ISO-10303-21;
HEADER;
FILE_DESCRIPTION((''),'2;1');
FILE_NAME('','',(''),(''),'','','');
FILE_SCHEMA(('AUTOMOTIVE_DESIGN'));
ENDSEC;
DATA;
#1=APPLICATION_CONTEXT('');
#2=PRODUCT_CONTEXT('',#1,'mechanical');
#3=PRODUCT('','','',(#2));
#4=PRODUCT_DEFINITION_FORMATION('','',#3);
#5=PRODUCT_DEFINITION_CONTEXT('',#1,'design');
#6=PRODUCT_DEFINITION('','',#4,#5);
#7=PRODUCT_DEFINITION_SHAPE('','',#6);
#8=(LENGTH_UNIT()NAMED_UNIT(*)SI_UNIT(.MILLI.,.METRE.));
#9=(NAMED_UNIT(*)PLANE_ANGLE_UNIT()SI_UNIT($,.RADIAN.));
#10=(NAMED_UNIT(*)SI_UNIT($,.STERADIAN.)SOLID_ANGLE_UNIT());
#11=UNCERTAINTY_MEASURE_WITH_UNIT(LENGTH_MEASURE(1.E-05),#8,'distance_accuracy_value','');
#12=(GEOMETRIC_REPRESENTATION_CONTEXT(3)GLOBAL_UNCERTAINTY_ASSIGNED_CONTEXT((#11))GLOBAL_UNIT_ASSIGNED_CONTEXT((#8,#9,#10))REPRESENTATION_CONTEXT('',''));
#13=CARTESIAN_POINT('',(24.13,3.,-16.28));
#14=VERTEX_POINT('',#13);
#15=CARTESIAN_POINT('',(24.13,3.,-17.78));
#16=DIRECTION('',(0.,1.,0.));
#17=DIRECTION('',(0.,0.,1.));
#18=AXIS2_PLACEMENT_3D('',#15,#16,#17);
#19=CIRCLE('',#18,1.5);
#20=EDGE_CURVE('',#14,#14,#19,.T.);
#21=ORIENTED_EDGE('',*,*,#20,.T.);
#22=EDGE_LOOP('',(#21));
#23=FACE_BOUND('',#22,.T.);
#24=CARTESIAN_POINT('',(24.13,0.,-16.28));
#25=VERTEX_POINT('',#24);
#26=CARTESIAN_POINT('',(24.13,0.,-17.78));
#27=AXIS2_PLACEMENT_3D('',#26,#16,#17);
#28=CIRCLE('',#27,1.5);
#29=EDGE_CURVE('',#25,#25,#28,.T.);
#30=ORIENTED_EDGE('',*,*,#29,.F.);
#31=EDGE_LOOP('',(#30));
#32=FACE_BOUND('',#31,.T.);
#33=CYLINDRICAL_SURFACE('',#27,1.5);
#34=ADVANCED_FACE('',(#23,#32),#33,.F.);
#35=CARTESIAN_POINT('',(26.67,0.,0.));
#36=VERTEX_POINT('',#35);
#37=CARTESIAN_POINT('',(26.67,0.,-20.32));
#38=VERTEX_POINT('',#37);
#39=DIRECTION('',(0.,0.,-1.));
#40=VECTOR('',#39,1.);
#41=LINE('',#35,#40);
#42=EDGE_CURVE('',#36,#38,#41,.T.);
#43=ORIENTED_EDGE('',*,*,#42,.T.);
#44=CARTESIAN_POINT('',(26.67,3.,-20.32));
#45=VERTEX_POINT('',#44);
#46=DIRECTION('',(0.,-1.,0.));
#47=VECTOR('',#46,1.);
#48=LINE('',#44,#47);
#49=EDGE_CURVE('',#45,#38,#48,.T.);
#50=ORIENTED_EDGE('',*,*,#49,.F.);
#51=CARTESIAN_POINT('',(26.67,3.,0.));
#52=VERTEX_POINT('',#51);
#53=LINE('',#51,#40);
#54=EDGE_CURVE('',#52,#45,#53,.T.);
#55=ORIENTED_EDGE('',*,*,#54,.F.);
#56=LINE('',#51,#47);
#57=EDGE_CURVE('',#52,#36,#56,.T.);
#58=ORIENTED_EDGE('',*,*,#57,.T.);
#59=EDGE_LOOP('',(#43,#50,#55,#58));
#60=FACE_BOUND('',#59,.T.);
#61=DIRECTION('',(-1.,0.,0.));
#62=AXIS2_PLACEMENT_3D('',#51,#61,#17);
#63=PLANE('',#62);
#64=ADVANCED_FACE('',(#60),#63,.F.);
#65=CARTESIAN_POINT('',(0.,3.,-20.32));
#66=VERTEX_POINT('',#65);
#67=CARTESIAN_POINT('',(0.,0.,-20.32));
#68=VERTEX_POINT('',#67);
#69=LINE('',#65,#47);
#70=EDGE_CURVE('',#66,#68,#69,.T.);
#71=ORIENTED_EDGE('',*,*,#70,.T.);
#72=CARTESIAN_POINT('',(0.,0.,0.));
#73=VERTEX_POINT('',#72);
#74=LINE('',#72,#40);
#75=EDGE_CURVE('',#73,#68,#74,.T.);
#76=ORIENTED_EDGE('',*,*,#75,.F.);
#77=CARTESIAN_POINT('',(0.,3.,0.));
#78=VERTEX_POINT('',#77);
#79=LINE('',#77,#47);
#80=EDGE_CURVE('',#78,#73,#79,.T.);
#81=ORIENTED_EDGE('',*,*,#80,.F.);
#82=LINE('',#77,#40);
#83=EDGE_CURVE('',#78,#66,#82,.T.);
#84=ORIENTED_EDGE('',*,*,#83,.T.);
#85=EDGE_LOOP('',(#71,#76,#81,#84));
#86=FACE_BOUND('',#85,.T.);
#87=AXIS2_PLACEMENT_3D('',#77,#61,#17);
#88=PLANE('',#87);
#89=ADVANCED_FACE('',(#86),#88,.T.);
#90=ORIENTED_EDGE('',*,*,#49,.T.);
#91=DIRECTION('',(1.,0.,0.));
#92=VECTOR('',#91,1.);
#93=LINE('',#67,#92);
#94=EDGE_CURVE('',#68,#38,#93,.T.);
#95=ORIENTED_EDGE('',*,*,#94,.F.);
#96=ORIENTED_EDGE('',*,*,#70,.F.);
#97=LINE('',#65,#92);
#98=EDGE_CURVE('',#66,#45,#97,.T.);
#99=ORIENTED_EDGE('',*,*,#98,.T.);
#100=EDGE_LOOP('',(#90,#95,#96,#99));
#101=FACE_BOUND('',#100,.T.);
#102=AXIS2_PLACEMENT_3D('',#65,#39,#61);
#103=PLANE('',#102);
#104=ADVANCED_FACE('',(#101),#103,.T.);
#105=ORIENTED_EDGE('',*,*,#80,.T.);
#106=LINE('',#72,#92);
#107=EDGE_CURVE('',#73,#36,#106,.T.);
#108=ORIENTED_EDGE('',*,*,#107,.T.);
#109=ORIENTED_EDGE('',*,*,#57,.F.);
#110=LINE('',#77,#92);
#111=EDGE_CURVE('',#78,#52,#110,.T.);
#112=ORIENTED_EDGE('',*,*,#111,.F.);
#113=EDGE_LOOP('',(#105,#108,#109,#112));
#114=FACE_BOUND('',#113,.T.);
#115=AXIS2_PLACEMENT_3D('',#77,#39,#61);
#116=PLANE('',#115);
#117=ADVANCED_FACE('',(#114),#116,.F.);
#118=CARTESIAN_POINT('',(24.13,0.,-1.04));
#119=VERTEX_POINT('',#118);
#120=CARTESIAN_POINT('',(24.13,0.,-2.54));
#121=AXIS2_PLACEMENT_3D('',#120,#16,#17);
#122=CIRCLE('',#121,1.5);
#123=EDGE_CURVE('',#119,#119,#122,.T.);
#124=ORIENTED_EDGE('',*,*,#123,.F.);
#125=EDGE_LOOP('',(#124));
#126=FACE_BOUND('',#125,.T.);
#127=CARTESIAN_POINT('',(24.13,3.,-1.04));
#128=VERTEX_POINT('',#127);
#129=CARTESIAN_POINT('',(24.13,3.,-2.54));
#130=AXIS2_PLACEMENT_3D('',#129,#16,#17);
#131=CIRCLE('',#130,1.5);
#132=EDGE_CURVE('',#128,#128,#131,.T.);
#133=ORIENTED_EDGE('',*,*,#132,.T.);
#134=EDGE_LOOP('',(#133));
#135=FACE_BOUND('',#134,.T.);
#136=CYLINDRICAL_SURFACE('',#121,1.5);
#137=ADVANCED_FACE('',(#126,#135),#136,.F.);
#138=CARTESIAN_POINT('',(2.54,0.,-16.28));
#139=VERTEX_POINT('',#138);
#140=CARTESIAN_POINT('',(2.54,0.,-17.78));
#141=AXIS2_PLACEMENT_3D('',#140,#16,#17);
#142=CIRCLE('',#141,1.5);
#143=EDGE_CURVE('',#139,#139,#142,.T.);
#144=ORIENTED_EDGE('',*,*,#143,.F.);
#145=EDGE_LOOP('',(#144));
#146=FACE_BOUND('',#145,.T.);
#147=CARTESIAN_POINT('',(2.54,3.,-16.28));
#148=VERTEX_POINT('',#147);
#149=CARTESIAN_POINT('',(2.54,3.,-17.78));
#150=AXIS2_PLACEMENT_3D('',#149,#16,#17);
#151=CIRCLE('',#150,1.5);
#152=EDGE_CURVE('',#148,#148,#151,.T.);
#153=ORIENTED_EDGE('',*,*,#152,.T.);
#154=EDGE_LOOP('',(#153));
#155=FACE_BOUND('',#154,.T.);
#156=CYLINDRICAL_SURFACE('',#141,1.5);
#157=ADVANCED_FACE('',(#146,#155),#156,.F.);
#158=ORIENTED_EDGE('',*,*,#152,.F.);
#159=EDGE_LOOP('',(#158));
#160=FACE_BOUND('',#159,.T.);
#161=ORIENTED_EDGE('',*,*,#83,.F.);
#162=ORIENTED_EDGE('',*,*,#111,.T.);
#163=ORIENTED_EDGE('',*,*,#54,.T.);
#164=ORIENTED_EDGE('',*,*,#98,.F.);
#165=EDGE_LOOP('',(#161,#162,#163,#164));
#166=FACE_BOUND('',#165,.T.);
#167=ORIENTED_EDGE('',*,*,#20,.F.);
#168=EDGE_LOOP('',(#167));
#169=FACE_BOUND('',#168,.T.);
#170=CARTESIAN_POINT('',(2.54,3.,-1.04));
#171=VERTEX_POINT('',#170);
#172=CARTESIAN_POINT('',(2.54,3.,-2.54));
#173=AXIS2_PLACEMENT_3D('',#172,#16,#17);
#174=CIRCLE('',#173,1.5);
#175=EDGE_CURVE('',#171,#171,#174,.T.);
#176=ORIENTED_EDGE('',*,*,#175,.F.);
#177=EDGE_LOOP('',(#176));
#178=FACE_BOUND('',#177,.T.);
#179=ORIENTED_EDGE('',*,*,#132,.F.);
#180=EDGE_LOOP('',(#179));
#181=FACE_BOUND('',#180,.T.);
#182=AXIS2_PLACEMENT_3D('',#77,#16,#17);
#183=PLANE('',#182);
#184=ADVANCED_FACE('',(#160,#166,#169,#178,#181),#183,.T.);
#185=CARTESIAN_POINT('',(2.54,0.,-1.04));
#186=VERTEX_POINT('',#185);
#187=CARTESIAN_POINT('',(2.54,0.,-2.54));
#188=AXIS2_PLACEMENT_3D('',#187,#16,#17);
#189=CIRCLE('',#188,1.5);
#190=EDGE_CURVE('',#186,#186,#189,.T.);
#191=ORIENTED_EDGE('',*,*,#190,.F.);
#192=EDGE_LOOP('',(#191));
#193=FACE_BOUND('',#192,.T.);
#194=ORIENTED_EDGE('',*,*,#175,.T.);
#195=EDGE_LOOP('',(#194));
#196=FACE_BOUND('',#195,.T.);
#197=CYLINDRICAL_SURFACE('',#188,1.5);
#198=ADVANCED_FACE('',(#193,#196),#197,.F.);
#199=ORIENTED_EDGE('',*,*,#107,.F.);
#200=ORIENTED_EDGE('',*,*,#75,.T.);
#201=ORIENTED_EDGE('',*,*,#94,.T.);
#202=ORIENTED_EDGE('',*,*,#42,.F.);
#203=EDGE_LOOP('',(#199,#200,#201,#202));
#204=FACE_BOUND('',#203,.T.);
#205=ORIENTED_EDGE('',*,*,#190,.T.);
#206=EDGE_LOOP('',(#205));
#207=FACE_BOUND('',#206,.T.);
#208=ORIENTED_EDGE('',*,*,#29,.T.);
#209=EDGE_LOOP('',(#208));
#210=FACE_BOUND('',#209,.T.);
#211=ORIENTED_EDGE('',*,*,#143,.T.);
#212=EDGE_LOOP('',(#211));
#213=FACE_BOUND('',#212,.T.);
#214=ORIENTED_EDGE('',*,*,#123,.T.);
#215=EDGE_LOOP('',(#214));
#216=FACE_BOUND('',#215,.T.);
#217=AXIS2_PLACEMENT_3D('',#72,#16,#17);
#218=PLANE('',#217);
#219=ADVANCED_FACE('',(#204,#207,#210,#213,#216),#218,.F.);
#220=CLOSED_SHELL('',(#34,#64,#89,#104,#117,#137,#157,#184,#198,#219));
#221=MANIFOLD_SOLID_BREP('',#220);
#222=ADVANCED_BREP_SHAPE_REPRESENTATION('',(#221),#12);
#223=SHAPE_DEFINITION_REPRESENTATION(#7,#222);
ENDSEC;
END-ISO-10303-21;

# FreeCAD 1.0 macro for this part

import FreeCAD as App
import Part
import Sketcher
Q = App.Units.Quantity


def add_polygon(sketch, points):
    """Adds a closed chain of lines whose ends are joined by coincident constraints."""
    first, n = sketch.GeometryCount, len(points)
    for a, b in zip(points, points[1:] + points[:1]):
        sketch.addGeometry(Part.LineSegment(App.Vector(*a, 0), App.Vector(*b, 0)), False)
    for i in range(n):
        sketch.addConstraint(Sketcher.Constraint("Coincident", first + i, 2, first + (i + 1) % n, 1))

doc = App.newDocument("Part")
params = doc.addObject("Spreadsheet::Sheet", "Params")
for row, (alias, value) in enumerate([
    ("sketch1_height", "0.8 in"),
    ("sketch1_width", "1.05 in"),
    ("pad1_length", "3 mm"),
], start=1):
    params.set(f"A{row}", alias)
    params.set(f"B{row}", "=" + value)
    params.setAlias(f"B{row}", alias)

body = doc.addObject("PartDesign::Body", "Body")

sketch1 = body.newObject("Sketcher::SketchObject", "Sketch")
sketch1.AttachmentSupport = (doc.getObject("XZ_Plane"), [""])
sketch1.MapMode = "FlatFace"
add_polygon(sketch1, [(0, -20), (0, 0), (27, 0), (27, -20)])
sketch1.addConstraint([
    Sketcher.Constraint("Vertical", 0),
    Sketcher.Constraint("Horizontal", 1),
    Sketcher.Constraint("Vertical", 2),
    Sketcher.Constraint("Horizontal", 3),
    Sketcher.Constraint("Coincident", 0, 2, -1, 1),
    Sketcher.Constraint("DistanceY", 0, 1, 0, 2, Q("0.8 in")),
    Sketcher.Constraint("DistanceX", 1, 1, 1, 2, Q("1.05 in")),
])
sketch1.setExpression("Constraints[9]", "Params.sketch1_height")
sketch1.setExpression("Constraints[10]", "Params.sketch1_width")
pad1 = body.newObject("PartDesign::Pad", "Pad")
pad1.Profile = sketch1
pad1.setExpression("Length", "Params.pad1_length")
pad1.Reversed = True

sketch2 = body.newObject("Sketcher::SketchObject", "Sketch001")
sketch2.AttachmentSupport = (doc.getObject("XZ_Plane"), [""])
sketch2.MapMode = "FlatFace"
sketch2.AttachmentOffset = App.Placement(App.Vector(0, 0, -3), App.Rotation())
sketch2.addGeometry([
    Part.Circle(App.Vector(24.1, -2.5, 0), App.Vector(0, 0, 1), 1.5),
    Part.Circle(App.Vector(2.5, -2.5, 0), App.Vector(0, 0, 1), 1.5),
    Part.Circle(App.Vector(2.5, -17.8, 0), App.Vector(0, 0, 1), 1.5),
    Part.Circle(App.Vector(24.1, -17.8, 0), App.Vector(0, 0, 1), 1.5),
], False)
sketch2.addConstraint([
    Sketcher.Constraint("Equal", 0, 1),
    Sketcher.Constraint("Equal", 1, 2),
    Sketcher.Constraint("Equal", 2, 3),
    Sketcher.Constraint("Horizontal", 0, 3, 1, 3),
    Sketcher.Constraint("Horizontal", 2, 3, 3, 3),
    Sketcher.Constraint("Vertical", 1, 3, 2, 3),
    Sketcher.Constraint("Vertical", 0, 3, 3, 3),
    Sketcher.Constraint("DistanceY", 0, 3, -1, 1, Q("0.1 in")),
    Sketcher.Constraint("DistanceX", -1, 1, 1, 3, Q("0.1 in")),
    Sketcher.Constraint("DistanceY", 2, 3, -1, 1, Q("0.7 in")),
    Sketcher.Constraint("Diameter", 0, 3.0),
    Sketcher.Constraint("DistanceX", -1, 1, 0, 3, Q("0.95 in")),
])
pocket1 = body.newObject("PartDesign::Pocket", "Pocket")
pocket1.Profile = sketch2
pocket1.Type = "ThroughAll"
pocket1.Reversed = True

doc.recompute()
